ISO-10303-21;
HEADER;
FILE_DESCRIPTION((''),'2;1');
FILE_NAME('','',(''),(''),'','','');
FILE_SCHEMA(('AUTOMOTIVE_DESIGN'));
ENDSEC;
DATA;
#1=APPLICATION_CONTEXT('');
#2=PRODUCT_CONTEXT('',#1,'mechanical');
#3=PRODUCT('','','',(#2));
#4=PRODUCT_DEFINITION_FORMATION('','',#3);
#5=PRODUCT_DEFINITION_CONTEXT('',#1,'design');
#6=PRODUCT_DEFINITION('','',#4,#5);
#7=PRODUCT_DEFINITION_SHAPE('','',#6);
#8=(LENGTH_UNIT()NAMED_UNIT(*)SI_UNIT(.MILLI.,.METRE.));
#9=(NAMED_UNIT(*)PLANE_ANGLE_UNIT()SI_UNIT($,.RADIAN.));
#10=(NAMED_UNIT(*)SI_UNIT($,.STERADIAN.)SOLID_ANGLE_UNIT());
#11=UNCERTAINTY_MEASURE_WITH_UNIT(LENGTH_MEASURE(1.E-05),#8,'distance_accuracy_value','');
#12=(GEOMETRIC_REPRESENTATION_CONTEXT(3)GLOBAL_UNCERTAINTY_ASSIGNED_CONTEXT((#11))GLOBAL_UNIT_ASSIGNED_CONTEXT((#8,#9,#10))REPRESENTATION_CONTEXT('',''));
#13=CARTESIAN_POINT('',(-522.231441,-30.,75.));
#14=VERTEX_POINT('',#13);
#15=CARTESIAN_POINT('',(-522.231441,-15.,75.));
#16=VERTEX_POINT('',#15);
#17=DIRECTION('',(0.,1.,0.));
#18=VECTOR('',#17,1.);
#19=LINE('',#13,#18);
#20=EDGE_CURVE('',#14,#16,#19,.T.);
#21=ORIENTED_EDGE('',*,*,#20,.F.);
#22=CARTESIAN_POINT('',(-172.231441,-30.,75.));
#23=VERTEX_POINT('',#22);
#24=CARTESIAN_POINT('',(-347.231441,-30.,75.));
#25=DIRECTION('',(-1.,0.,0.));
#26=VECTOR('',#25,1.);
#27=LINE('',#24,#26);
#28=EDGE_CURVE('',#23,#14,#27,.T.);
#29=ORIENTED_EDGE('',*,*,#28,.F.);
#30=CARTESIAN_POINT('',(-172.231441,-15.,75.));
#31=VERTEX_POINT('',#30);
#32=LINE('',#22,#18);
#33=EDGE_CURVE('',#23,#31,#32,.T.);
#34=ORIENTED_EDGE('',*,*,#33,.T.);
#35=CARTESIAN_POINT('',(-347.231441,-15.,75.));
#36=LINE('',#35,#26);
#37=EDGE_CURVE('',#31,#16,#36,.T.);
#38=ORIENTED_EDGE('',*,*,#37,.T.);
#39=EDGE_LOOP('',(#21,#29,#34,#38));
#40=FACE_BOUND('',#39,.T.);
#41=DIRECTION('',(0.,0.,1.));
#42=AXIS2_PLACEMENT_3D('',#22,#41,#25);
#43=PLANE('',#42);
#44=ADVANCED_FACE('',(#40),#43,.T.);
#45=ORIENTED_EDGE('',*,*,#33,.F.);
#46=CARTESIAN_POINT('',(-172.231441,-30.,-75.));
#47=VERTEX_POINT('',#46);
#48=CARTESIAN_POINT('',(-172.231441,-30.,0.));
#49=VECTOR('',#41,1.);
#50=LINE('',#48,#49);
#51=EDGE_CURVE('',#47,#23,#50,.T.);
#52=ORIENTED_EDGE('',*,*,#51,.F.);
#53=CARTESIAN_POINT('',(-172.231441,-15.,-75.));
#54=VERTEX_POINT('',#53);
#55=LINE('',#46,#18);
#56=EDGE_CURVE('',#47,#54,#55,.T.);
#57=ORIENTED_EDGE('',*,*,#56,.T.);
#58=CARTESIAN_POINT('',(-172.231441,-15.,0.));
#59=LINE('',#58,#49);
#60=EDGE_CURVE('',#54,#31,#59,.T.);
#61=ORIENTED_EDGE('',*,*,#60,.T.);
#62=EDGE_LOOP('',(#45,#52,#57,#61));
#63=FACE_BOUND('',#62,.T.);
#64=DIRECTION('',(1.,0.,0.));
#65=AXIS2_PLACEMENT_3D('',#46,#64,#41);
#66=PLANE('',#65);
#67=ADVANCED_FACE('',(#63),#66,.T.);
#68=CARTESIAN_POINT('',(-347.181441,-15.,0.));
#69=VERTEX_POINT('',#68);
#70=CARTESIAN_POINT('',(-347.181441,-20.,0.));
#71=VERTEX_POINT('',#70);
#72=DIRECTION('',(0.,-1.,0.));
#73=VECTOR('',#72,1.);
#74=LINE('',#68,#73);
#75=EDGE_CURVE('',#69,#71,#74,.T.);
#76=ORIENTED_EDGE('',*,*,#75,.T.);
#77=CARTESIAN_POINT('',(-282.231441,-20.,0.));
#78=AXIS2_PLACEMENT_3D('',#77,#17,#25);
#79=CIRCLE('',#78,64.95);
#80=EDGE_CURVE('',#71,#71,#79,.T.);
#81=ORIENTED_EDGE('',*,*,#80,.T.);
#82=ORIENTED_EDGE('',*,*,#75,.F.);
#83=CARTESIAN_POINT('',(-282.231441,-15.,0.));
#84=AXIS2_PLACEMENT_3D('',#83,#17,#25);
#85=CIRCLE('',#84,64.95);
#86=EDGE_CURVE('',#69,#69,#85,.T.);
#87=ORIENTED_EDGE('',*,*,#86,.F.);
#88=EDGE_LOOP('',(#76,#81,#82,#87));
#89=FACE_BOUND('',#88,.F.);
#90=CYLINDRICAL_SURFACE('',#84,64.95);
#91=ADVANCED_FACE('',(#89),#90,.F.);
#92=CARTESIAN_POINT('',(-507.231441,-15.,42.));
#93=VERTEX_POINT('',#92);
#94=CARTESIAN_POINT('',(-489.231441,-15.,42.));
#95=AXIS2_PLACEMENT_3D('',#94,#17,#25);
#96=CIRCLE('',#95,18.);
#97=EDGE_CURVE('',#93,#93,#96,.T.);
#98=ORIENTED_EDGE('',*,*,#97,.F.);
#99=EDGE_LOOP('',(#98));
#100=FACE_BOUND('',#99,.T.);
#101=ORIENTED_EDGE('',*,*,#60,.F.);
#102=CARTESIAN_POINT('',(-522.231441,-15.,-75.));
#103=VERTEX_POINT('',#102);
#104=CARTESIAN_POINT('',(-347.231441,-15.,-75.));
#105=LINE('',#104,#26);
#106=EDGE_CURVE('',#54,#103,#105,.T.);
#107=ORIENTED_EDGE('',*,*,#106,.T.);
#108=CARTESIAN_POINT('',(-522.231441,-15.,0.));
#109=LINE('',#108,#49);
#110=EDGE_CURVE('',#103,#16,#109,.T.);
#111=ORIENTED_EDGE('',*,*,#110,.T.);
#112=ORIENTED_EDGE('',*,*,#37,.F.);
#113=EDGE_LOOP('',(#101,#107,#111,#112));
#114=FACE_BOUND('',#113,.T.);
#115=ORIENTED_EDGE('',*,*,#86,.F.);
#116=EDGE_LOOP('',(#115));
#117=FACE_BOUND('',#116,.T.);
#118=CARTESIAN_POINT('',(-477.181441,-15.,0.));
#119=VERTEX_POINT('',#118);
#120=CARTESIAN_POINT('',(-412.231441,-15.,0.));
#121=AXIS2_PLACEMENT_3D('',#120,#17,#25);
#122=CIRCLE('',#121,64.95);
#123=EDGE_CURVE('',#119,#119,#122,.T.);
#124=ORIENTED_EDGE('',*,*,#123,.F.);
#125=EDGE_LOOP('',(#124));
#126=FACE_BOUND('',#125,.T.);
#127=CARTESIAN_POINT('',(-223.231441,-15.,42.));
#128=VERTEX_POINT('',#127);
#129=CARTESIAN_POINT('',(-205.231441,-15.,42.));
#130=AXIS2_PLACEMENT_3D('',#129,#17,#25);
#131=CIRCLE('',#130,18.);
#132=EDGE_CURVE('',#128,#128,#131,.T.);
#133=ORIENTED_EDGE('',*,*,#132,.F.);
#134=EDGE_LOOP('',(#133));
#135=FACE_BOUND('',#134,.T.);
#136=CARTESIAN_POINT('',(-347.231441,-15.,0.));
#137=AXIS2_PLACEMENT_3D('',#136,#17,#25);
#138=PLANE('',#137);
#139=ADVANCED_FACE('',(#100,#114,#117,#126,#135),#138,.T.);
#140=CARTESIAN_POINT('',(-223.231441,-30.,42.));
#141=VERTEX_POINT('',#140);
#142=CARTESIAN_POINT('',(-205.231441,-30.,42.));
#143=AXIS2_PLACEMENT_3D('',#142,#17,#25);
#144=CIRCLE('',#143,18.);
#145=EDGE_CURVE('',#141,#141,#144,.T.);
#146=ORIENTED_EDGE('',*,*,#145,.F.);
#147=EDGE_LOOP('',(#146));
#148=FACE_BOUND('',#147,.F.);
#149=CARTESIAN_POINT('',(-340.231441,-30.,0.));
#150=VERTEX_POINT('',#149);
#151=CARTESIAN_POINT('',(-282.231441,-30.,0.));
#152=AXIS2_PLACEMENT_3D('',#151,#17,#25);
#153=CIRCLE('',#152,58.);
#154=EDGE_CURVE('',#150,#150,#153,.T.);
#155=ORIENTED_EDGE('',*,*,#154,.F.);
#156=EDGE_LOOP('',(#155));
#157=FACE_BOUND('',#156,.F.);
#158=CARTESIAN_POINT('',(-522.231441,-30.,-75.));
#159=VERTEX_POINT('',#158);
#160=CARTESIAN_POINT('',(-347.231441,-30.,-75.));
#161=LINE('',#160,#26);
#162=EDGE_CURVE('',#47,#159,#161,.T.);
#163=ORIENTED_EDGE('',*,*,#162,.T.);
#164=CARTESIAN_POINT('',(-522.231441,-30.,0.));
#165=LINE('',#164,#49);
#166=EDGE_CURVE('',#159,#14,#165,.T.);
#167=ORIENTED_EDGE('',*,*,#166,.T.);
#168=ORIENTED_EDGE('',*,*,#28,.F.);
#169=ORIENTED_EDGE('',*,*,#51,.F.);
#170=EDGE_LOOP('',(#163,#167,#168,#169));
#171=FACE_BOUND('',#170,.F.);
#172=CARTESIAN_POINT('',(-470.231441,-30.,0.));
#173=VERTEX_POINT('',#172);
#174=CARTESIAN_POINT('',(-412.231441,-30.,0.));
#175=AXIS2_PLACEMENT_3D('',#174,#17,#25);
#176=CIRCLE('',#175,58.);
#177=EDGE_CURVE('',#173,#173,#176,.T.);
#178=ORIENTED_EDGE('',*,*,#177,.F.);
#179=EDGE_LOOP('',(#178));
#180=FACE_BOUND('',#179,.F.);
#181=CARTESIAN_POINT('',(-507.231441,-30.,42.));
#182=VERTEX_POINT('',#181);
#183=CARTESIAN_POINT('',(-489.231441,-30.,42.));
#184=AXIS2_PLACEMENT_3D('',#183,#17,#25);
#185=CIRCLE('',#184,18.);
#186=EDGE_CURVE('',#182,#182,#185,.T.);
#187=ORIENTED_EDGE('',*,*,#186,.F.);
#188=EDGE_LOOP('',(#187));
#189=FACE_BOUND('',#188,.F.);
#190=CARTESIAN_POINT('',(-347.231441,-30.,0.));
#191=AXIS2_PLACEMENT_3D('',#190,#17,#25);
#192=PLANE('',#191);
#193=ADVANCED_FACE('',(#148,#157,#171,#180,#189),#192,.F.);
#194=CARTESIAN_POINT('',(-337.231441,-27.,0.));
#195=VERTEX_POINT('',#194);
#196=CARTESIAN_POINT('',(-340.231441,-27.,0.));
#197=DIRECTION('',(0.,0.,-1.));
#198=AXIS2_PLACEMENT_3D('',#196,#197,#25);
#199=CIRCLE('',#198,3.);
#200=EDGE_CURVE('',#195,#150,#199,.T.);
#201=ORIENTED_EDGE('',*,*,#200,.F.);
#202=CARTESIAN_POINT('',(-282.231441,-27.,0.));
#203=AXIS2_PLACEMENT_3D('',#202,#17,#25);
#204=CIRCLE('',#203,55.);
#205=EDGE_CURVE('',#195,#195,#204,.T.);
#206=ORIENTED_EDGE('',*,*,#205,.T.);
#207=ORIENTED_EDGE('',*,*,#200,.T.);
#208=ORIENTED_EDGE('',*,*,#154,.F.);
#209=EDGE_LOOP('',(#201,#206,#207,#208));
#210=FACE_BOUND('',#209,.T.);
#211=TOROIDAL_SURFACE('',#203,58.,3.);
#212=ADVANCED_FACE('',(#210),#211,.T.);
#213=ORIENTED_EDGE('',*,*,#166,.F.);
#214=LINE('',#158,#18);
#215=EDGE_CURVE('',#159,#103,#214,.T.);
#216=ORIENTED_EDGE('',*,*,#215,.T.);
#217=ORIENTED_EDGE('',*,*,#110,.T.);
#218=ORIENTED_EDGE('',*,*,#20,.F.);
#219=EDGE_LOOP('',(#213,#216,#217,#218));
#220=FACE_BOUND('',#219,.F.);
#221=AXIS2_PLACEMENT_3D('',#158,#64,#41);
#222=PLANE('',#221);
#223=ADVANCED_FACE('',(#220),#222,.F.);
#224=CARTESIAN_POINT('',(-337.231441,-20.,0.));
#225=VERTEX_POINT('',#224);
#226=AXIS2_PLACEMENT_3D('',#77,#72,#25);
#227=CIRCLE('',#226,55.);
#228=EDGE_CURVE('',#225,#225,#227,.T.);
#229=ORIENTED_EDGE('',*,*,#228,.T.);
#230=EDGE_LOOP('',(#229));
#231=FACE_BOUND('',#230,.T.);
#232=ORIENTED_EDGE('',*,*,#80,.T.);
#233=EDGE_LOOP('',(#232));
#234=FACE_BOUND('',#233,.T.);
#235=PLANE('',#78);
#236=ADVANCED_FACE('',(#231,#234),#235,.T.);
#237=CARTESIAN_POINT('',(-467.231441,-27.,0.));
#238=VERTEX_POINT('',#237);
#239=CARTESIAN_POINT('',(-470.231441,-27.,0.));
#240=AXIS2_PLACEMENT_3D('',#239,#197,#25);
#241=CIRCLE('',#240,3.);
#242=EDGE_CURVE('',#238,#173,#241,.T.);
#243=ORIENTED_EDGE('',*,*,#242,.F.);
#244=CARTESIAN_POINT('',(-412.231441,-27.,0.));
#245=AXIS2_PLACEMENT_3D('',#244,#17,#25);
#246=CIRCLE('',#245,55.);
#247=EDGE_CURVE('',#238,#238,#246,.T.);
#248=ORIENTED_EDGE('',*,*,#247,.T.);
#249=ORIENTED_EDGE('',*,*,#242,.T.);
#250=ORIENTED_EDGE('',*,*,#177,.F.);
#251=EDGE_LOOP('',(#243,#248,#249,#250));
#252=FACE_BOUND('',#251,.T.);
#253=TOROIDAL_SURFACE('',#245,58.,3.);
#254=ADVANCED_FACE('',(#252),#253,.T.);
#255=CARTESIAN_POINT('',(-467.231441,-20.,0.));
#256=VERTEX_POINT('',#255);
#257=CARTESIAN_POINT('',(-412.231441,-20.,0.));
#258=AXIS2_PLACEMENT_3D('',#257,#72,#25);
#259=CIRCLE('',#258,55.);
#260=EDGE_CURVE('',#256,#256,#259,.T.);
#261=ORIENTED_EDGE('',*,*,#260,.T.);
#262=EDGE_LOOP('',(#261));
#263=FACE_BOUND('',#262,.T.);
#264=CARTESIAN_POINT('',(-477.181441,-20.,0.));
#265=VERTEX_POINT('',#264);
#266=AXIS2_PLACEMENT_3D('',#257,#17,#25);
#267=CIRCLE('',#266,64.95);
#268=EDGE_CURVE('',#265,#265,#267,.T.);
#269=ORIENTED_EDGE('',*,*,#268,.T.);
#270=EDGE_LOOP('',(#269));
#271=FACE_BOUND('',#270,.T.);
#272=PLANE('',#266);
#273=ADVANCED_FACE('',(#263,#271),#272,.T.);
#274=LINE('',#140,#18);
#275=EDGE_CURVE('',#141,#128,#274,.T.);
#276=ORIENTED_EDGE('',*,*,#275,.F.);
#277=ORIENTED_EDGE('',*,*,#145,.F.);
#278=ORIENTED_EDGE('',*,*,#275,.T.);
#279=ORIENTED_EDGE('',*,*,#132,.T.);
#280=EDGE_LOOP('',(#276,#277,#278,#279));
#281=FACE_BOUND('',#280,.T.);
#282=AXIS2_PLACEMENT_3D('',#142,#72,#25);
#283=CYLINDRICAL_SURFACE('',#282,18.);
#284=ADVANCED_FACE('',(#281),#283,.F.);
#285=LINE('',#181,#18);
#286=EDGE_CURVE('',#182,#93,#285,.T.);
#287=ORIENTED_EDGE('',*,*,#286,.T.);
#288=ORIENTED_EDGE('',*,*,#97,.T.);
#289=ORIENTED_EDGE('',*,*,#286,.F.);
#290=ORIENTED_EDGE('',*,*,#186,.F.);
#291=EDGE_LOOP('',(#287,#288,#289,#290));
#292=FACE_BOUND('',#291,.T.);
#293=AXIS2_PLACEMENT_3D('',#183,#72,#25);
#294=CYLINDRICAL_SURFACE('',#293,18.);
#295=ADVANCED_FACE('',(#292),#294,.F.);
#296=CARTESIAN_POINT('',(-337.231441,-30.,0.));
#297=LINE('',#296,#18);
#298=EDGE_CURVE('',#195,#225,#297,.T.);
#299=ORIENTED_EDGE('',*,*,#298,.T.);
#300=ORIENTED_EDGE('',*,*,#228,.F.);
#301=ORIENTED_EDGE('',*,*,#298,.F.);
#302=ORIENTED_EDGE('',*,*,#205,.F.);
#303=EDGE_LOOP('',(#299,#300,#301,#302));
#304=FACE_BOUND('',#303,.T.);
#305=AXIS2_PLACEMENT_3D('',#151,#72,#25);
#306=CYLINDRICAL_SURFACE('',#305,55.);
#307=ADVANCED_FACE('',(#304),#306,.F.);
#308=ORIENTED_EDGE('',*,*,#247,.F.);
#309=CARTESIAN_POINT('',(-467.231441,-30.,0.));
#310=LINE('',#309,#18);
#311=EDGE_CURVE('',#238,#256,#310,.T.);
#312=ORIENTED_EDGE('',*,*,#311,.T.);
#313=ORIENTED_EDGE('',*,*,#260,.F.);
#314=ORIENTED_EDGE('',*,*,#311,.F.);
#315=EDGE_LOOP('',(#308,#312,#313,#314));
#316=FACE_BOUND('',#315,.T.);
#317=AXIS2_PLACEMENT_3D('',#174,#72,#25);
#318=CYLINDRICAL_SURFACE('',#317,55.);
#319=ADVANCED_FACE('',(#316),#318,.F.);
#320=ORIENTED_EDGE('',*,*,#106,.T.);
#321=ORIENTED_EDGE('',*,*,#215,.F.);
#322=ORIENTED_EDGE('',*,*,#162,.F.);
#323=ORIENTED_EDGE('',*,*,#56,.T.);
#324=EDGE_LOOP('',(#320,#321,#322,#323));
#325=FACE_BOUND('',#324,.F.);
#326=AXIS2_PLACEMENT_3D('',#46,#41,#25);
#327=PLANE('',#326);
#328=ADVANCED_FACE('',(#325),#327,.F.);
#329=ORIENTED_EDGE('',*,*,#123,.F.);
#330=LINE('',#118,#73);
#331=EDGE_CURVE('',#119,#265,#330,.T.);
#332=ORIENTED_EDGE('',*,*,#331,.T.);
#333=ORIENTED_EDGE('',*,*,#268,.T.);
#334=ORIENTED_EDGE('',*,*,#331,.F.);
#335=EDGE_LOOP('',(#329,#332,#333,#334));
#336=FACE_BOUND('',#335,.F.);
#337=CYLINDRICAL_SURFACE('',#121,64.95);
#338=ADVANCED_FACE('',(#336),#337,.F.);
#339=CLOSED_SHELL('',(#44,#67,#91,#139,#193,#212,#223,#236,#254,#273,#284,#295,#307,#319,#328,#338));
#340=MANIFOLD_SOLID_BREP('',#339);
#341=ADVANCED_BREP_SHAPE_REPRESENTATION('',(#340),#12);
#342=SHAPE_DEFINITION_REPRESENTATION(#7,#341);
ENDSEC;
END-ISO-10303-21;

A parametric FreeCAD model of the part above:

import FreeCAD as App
import Part
import Sketcher
Q = App.Units.Quantity


def edges_at(feature, points):
    """Names of the edges that pass closest to the given points."""
    edges = feature.Shape.Edges
    near = lambda p: min(range(len(edges)), key=lambda i: edges[i].distToShape(Part.Vertex(*p))[0])
    return sorted({f"Edge{near(p) + 1}" for p in points})


def add_polygon(sketch, points):
    """Adds a closed chain of lines whose ends are joined by coincident constraints."""
    first, n = sketch.GeometryCount, len(points)
    for a, b in zip(points, points[1:] + points[:1]):
        sketch.addGeometry(Part.LineSegment(App.Vector(*a, 0), App.Vector(*b, 0)), False)
    for i in range(n):
        sketch.addConstraint(Sketcher.Constraint("Coincident", first + i, 2, first + (i + 1) % n, 1))

doc = App.newDocument("Part")
body = doc.addObject("PartDesign::Body", "Body")

sketch1 = body.newObject("Sketcher::SketchObject", "Sketch")
sketch1.AttachmentSupport = (doc.getObject("XZ_Plane"), [""])
sketch1.MapMode = "FlatFace"
add_polygon(sketch1, [(-172, 75), (-172, -75), (178, -75), (178, 75)])
sketch1.addGeometry(Part.Circle(App.Vector(-62, 0, 0), App.Vector(0, 0, 1), 55), False)
sketch1.addGeometry(Part.Circle(App.Vector(68, 0, 0), App.Vector(0, 0, 1), 55), False)
sketch1.addGeometry(Part.Circle(App.Vector(-139, 42, 0), App.Vector(0, 0, 1), 18), False)
sketch1.addGeometry(Part.Circle(App.Vector(145, 42, 0), App.Vector(0, 0, 1), 18), False)
sketch1.addConstraint(Sketcher.Constraint("Vertical", 0))
sketch1.addConstraint(Sketcher.Constraint("Horizontal", 1))
sketch1.addConstraint(Sketcher.Constraint("Vertical", 2))
sketch1.addConstraint(Sketcher.Constraint("Horizontal", 3))
sketch1.addConstraint(Sketcher.Constraint("Equal", 4, 5))
sketch1.addConstraint(Sketcher.Constraint("Equal", 6, 7))
sketch1.addConstraint(Sketcher.Constraint("PointOnObject", 4, 3, -1))
sketch1.addConstraint(Sketcher.Constraint("PointOnObject", 5, 3, -1))
sketch1.addConstraint(Sketcher.Constraint("Horizontal", 6, 3, 7, 3))
sketch1.addConstraint(Sketcher.Constraint("Diameter", 4, Q("110 mm")))
sketch1.addConstraint(Sketcher.Constraint("Diameter", 6, Q("36 mm")))
sketch1.addConstraint(Sketcher.Constraint("DistanceX", 1, 1, 1, 2, Q("350 mm")))
sketch1.addConstraint(Sketcher.Constraint("DistanceY", 0, 2, 0, 1, Q("150 mm")))
sketch1.addConstraint(Sketcher.Constraint("DistanceY", -1, 1, 6, 3, Q("42 mm")))
sketch1.addConstraint(Sketcher.Constraint("DistanceY", 0, 2, -1, 1, Q("75 mm")))
sketch1.addConstraint(Sketcher.Constraint("DistanceX", 4, 3, 5, 3, Q("130 mm")))
sketch1.addConstraint(Sketcher.Constraint("DistanceX", 6, 3, 4, 3, Q("77 mm")))
sketch1.addConstraint(Sketcher.Constraint("DistanceX", 5, 3, 7, 3, Q("77 mm")))
sketch1.addConstraint(Sketcher.Constraint("DistanceX", 0, 2, 6, 3, Q("33 mm")))
sketch1.addConstraint(Sketcher.Constraint("DistanceX", 4, 3, -1, 1, Q("62.231441 mm")))
pad1 = body.newObject("PartDesign::Pad", "Pad")
pad1.Profile = sketch1
pad1.Length = 15
doc.recompute()

fillet = body.newObject("PartDesign::Fillet", "Fillet")
fillet.Base = (pad1, edges_at(pad1, [(-117.231, 0, 0), (12.769, 0, 0)]))
fillet.Radius = 3
body2 = doc.addObject("PartDesign::Body", "Body001")
doc.recompute()

body.Placement = App.Placement(App.Vector(-344.462882, -30, 0), App.Rotation(App.Vector(0, 0, 1), 180))
boolean = body2.newObject("PartDesign::Boolean", "Boolean")
boolean.Type = "Fuse"
boolean.addObjects([body])

sketch2 = body2.newObject("Sketcher::SketchObject", "Sketch001")
sketch2.AttachmentSupport = (doc.getObject("XZ_Plane001"), [""])
sketch2.MapMode = "FlatFace"
sketch2.AttachmentOffset = App.Placement(App.Vector(0, 0, 15), App.Rotation())
sketch2.addGeometry(Part.Circle(App.Vector(-282, 0, 0), App.Vector(0, 0, 1), 65), False)
sketch2.addGeometry(Part.Circle(App.Vector(-412, 0, 0), App.Vector(0, 0, 1), 65), False)
sketch2.addConstraint(Sketcher.Constraint("Equal", 0, 1))
sketch2.addConstraint(Sketcher.Constraint("PointOnObject", 0, 3, -1))
sketch2.addConstraint(Sketcher.Constraint("PointOnObject", 1, 3, -1))
sketch2.addConstraint(Sketcher.Constraint("Diameter", 0, Q("129.9 mm")))
sketch2.addConstraint(Sketcher.Constraint("DistanceX", 1, 3, 0, 3, Q("130 mm")))
sketch2.addConstraint(Sketcher.Constraint("DistanceX", 0, 3, -1, 1, Q("282.231441 mm")))
pocket1 = body2.newObject("PartDesign::Pocket", "Pocket")
pocket1.Profile = sketch2
pocket1.Length = 5
pocket1.Reversed = True

doc.recompute()
